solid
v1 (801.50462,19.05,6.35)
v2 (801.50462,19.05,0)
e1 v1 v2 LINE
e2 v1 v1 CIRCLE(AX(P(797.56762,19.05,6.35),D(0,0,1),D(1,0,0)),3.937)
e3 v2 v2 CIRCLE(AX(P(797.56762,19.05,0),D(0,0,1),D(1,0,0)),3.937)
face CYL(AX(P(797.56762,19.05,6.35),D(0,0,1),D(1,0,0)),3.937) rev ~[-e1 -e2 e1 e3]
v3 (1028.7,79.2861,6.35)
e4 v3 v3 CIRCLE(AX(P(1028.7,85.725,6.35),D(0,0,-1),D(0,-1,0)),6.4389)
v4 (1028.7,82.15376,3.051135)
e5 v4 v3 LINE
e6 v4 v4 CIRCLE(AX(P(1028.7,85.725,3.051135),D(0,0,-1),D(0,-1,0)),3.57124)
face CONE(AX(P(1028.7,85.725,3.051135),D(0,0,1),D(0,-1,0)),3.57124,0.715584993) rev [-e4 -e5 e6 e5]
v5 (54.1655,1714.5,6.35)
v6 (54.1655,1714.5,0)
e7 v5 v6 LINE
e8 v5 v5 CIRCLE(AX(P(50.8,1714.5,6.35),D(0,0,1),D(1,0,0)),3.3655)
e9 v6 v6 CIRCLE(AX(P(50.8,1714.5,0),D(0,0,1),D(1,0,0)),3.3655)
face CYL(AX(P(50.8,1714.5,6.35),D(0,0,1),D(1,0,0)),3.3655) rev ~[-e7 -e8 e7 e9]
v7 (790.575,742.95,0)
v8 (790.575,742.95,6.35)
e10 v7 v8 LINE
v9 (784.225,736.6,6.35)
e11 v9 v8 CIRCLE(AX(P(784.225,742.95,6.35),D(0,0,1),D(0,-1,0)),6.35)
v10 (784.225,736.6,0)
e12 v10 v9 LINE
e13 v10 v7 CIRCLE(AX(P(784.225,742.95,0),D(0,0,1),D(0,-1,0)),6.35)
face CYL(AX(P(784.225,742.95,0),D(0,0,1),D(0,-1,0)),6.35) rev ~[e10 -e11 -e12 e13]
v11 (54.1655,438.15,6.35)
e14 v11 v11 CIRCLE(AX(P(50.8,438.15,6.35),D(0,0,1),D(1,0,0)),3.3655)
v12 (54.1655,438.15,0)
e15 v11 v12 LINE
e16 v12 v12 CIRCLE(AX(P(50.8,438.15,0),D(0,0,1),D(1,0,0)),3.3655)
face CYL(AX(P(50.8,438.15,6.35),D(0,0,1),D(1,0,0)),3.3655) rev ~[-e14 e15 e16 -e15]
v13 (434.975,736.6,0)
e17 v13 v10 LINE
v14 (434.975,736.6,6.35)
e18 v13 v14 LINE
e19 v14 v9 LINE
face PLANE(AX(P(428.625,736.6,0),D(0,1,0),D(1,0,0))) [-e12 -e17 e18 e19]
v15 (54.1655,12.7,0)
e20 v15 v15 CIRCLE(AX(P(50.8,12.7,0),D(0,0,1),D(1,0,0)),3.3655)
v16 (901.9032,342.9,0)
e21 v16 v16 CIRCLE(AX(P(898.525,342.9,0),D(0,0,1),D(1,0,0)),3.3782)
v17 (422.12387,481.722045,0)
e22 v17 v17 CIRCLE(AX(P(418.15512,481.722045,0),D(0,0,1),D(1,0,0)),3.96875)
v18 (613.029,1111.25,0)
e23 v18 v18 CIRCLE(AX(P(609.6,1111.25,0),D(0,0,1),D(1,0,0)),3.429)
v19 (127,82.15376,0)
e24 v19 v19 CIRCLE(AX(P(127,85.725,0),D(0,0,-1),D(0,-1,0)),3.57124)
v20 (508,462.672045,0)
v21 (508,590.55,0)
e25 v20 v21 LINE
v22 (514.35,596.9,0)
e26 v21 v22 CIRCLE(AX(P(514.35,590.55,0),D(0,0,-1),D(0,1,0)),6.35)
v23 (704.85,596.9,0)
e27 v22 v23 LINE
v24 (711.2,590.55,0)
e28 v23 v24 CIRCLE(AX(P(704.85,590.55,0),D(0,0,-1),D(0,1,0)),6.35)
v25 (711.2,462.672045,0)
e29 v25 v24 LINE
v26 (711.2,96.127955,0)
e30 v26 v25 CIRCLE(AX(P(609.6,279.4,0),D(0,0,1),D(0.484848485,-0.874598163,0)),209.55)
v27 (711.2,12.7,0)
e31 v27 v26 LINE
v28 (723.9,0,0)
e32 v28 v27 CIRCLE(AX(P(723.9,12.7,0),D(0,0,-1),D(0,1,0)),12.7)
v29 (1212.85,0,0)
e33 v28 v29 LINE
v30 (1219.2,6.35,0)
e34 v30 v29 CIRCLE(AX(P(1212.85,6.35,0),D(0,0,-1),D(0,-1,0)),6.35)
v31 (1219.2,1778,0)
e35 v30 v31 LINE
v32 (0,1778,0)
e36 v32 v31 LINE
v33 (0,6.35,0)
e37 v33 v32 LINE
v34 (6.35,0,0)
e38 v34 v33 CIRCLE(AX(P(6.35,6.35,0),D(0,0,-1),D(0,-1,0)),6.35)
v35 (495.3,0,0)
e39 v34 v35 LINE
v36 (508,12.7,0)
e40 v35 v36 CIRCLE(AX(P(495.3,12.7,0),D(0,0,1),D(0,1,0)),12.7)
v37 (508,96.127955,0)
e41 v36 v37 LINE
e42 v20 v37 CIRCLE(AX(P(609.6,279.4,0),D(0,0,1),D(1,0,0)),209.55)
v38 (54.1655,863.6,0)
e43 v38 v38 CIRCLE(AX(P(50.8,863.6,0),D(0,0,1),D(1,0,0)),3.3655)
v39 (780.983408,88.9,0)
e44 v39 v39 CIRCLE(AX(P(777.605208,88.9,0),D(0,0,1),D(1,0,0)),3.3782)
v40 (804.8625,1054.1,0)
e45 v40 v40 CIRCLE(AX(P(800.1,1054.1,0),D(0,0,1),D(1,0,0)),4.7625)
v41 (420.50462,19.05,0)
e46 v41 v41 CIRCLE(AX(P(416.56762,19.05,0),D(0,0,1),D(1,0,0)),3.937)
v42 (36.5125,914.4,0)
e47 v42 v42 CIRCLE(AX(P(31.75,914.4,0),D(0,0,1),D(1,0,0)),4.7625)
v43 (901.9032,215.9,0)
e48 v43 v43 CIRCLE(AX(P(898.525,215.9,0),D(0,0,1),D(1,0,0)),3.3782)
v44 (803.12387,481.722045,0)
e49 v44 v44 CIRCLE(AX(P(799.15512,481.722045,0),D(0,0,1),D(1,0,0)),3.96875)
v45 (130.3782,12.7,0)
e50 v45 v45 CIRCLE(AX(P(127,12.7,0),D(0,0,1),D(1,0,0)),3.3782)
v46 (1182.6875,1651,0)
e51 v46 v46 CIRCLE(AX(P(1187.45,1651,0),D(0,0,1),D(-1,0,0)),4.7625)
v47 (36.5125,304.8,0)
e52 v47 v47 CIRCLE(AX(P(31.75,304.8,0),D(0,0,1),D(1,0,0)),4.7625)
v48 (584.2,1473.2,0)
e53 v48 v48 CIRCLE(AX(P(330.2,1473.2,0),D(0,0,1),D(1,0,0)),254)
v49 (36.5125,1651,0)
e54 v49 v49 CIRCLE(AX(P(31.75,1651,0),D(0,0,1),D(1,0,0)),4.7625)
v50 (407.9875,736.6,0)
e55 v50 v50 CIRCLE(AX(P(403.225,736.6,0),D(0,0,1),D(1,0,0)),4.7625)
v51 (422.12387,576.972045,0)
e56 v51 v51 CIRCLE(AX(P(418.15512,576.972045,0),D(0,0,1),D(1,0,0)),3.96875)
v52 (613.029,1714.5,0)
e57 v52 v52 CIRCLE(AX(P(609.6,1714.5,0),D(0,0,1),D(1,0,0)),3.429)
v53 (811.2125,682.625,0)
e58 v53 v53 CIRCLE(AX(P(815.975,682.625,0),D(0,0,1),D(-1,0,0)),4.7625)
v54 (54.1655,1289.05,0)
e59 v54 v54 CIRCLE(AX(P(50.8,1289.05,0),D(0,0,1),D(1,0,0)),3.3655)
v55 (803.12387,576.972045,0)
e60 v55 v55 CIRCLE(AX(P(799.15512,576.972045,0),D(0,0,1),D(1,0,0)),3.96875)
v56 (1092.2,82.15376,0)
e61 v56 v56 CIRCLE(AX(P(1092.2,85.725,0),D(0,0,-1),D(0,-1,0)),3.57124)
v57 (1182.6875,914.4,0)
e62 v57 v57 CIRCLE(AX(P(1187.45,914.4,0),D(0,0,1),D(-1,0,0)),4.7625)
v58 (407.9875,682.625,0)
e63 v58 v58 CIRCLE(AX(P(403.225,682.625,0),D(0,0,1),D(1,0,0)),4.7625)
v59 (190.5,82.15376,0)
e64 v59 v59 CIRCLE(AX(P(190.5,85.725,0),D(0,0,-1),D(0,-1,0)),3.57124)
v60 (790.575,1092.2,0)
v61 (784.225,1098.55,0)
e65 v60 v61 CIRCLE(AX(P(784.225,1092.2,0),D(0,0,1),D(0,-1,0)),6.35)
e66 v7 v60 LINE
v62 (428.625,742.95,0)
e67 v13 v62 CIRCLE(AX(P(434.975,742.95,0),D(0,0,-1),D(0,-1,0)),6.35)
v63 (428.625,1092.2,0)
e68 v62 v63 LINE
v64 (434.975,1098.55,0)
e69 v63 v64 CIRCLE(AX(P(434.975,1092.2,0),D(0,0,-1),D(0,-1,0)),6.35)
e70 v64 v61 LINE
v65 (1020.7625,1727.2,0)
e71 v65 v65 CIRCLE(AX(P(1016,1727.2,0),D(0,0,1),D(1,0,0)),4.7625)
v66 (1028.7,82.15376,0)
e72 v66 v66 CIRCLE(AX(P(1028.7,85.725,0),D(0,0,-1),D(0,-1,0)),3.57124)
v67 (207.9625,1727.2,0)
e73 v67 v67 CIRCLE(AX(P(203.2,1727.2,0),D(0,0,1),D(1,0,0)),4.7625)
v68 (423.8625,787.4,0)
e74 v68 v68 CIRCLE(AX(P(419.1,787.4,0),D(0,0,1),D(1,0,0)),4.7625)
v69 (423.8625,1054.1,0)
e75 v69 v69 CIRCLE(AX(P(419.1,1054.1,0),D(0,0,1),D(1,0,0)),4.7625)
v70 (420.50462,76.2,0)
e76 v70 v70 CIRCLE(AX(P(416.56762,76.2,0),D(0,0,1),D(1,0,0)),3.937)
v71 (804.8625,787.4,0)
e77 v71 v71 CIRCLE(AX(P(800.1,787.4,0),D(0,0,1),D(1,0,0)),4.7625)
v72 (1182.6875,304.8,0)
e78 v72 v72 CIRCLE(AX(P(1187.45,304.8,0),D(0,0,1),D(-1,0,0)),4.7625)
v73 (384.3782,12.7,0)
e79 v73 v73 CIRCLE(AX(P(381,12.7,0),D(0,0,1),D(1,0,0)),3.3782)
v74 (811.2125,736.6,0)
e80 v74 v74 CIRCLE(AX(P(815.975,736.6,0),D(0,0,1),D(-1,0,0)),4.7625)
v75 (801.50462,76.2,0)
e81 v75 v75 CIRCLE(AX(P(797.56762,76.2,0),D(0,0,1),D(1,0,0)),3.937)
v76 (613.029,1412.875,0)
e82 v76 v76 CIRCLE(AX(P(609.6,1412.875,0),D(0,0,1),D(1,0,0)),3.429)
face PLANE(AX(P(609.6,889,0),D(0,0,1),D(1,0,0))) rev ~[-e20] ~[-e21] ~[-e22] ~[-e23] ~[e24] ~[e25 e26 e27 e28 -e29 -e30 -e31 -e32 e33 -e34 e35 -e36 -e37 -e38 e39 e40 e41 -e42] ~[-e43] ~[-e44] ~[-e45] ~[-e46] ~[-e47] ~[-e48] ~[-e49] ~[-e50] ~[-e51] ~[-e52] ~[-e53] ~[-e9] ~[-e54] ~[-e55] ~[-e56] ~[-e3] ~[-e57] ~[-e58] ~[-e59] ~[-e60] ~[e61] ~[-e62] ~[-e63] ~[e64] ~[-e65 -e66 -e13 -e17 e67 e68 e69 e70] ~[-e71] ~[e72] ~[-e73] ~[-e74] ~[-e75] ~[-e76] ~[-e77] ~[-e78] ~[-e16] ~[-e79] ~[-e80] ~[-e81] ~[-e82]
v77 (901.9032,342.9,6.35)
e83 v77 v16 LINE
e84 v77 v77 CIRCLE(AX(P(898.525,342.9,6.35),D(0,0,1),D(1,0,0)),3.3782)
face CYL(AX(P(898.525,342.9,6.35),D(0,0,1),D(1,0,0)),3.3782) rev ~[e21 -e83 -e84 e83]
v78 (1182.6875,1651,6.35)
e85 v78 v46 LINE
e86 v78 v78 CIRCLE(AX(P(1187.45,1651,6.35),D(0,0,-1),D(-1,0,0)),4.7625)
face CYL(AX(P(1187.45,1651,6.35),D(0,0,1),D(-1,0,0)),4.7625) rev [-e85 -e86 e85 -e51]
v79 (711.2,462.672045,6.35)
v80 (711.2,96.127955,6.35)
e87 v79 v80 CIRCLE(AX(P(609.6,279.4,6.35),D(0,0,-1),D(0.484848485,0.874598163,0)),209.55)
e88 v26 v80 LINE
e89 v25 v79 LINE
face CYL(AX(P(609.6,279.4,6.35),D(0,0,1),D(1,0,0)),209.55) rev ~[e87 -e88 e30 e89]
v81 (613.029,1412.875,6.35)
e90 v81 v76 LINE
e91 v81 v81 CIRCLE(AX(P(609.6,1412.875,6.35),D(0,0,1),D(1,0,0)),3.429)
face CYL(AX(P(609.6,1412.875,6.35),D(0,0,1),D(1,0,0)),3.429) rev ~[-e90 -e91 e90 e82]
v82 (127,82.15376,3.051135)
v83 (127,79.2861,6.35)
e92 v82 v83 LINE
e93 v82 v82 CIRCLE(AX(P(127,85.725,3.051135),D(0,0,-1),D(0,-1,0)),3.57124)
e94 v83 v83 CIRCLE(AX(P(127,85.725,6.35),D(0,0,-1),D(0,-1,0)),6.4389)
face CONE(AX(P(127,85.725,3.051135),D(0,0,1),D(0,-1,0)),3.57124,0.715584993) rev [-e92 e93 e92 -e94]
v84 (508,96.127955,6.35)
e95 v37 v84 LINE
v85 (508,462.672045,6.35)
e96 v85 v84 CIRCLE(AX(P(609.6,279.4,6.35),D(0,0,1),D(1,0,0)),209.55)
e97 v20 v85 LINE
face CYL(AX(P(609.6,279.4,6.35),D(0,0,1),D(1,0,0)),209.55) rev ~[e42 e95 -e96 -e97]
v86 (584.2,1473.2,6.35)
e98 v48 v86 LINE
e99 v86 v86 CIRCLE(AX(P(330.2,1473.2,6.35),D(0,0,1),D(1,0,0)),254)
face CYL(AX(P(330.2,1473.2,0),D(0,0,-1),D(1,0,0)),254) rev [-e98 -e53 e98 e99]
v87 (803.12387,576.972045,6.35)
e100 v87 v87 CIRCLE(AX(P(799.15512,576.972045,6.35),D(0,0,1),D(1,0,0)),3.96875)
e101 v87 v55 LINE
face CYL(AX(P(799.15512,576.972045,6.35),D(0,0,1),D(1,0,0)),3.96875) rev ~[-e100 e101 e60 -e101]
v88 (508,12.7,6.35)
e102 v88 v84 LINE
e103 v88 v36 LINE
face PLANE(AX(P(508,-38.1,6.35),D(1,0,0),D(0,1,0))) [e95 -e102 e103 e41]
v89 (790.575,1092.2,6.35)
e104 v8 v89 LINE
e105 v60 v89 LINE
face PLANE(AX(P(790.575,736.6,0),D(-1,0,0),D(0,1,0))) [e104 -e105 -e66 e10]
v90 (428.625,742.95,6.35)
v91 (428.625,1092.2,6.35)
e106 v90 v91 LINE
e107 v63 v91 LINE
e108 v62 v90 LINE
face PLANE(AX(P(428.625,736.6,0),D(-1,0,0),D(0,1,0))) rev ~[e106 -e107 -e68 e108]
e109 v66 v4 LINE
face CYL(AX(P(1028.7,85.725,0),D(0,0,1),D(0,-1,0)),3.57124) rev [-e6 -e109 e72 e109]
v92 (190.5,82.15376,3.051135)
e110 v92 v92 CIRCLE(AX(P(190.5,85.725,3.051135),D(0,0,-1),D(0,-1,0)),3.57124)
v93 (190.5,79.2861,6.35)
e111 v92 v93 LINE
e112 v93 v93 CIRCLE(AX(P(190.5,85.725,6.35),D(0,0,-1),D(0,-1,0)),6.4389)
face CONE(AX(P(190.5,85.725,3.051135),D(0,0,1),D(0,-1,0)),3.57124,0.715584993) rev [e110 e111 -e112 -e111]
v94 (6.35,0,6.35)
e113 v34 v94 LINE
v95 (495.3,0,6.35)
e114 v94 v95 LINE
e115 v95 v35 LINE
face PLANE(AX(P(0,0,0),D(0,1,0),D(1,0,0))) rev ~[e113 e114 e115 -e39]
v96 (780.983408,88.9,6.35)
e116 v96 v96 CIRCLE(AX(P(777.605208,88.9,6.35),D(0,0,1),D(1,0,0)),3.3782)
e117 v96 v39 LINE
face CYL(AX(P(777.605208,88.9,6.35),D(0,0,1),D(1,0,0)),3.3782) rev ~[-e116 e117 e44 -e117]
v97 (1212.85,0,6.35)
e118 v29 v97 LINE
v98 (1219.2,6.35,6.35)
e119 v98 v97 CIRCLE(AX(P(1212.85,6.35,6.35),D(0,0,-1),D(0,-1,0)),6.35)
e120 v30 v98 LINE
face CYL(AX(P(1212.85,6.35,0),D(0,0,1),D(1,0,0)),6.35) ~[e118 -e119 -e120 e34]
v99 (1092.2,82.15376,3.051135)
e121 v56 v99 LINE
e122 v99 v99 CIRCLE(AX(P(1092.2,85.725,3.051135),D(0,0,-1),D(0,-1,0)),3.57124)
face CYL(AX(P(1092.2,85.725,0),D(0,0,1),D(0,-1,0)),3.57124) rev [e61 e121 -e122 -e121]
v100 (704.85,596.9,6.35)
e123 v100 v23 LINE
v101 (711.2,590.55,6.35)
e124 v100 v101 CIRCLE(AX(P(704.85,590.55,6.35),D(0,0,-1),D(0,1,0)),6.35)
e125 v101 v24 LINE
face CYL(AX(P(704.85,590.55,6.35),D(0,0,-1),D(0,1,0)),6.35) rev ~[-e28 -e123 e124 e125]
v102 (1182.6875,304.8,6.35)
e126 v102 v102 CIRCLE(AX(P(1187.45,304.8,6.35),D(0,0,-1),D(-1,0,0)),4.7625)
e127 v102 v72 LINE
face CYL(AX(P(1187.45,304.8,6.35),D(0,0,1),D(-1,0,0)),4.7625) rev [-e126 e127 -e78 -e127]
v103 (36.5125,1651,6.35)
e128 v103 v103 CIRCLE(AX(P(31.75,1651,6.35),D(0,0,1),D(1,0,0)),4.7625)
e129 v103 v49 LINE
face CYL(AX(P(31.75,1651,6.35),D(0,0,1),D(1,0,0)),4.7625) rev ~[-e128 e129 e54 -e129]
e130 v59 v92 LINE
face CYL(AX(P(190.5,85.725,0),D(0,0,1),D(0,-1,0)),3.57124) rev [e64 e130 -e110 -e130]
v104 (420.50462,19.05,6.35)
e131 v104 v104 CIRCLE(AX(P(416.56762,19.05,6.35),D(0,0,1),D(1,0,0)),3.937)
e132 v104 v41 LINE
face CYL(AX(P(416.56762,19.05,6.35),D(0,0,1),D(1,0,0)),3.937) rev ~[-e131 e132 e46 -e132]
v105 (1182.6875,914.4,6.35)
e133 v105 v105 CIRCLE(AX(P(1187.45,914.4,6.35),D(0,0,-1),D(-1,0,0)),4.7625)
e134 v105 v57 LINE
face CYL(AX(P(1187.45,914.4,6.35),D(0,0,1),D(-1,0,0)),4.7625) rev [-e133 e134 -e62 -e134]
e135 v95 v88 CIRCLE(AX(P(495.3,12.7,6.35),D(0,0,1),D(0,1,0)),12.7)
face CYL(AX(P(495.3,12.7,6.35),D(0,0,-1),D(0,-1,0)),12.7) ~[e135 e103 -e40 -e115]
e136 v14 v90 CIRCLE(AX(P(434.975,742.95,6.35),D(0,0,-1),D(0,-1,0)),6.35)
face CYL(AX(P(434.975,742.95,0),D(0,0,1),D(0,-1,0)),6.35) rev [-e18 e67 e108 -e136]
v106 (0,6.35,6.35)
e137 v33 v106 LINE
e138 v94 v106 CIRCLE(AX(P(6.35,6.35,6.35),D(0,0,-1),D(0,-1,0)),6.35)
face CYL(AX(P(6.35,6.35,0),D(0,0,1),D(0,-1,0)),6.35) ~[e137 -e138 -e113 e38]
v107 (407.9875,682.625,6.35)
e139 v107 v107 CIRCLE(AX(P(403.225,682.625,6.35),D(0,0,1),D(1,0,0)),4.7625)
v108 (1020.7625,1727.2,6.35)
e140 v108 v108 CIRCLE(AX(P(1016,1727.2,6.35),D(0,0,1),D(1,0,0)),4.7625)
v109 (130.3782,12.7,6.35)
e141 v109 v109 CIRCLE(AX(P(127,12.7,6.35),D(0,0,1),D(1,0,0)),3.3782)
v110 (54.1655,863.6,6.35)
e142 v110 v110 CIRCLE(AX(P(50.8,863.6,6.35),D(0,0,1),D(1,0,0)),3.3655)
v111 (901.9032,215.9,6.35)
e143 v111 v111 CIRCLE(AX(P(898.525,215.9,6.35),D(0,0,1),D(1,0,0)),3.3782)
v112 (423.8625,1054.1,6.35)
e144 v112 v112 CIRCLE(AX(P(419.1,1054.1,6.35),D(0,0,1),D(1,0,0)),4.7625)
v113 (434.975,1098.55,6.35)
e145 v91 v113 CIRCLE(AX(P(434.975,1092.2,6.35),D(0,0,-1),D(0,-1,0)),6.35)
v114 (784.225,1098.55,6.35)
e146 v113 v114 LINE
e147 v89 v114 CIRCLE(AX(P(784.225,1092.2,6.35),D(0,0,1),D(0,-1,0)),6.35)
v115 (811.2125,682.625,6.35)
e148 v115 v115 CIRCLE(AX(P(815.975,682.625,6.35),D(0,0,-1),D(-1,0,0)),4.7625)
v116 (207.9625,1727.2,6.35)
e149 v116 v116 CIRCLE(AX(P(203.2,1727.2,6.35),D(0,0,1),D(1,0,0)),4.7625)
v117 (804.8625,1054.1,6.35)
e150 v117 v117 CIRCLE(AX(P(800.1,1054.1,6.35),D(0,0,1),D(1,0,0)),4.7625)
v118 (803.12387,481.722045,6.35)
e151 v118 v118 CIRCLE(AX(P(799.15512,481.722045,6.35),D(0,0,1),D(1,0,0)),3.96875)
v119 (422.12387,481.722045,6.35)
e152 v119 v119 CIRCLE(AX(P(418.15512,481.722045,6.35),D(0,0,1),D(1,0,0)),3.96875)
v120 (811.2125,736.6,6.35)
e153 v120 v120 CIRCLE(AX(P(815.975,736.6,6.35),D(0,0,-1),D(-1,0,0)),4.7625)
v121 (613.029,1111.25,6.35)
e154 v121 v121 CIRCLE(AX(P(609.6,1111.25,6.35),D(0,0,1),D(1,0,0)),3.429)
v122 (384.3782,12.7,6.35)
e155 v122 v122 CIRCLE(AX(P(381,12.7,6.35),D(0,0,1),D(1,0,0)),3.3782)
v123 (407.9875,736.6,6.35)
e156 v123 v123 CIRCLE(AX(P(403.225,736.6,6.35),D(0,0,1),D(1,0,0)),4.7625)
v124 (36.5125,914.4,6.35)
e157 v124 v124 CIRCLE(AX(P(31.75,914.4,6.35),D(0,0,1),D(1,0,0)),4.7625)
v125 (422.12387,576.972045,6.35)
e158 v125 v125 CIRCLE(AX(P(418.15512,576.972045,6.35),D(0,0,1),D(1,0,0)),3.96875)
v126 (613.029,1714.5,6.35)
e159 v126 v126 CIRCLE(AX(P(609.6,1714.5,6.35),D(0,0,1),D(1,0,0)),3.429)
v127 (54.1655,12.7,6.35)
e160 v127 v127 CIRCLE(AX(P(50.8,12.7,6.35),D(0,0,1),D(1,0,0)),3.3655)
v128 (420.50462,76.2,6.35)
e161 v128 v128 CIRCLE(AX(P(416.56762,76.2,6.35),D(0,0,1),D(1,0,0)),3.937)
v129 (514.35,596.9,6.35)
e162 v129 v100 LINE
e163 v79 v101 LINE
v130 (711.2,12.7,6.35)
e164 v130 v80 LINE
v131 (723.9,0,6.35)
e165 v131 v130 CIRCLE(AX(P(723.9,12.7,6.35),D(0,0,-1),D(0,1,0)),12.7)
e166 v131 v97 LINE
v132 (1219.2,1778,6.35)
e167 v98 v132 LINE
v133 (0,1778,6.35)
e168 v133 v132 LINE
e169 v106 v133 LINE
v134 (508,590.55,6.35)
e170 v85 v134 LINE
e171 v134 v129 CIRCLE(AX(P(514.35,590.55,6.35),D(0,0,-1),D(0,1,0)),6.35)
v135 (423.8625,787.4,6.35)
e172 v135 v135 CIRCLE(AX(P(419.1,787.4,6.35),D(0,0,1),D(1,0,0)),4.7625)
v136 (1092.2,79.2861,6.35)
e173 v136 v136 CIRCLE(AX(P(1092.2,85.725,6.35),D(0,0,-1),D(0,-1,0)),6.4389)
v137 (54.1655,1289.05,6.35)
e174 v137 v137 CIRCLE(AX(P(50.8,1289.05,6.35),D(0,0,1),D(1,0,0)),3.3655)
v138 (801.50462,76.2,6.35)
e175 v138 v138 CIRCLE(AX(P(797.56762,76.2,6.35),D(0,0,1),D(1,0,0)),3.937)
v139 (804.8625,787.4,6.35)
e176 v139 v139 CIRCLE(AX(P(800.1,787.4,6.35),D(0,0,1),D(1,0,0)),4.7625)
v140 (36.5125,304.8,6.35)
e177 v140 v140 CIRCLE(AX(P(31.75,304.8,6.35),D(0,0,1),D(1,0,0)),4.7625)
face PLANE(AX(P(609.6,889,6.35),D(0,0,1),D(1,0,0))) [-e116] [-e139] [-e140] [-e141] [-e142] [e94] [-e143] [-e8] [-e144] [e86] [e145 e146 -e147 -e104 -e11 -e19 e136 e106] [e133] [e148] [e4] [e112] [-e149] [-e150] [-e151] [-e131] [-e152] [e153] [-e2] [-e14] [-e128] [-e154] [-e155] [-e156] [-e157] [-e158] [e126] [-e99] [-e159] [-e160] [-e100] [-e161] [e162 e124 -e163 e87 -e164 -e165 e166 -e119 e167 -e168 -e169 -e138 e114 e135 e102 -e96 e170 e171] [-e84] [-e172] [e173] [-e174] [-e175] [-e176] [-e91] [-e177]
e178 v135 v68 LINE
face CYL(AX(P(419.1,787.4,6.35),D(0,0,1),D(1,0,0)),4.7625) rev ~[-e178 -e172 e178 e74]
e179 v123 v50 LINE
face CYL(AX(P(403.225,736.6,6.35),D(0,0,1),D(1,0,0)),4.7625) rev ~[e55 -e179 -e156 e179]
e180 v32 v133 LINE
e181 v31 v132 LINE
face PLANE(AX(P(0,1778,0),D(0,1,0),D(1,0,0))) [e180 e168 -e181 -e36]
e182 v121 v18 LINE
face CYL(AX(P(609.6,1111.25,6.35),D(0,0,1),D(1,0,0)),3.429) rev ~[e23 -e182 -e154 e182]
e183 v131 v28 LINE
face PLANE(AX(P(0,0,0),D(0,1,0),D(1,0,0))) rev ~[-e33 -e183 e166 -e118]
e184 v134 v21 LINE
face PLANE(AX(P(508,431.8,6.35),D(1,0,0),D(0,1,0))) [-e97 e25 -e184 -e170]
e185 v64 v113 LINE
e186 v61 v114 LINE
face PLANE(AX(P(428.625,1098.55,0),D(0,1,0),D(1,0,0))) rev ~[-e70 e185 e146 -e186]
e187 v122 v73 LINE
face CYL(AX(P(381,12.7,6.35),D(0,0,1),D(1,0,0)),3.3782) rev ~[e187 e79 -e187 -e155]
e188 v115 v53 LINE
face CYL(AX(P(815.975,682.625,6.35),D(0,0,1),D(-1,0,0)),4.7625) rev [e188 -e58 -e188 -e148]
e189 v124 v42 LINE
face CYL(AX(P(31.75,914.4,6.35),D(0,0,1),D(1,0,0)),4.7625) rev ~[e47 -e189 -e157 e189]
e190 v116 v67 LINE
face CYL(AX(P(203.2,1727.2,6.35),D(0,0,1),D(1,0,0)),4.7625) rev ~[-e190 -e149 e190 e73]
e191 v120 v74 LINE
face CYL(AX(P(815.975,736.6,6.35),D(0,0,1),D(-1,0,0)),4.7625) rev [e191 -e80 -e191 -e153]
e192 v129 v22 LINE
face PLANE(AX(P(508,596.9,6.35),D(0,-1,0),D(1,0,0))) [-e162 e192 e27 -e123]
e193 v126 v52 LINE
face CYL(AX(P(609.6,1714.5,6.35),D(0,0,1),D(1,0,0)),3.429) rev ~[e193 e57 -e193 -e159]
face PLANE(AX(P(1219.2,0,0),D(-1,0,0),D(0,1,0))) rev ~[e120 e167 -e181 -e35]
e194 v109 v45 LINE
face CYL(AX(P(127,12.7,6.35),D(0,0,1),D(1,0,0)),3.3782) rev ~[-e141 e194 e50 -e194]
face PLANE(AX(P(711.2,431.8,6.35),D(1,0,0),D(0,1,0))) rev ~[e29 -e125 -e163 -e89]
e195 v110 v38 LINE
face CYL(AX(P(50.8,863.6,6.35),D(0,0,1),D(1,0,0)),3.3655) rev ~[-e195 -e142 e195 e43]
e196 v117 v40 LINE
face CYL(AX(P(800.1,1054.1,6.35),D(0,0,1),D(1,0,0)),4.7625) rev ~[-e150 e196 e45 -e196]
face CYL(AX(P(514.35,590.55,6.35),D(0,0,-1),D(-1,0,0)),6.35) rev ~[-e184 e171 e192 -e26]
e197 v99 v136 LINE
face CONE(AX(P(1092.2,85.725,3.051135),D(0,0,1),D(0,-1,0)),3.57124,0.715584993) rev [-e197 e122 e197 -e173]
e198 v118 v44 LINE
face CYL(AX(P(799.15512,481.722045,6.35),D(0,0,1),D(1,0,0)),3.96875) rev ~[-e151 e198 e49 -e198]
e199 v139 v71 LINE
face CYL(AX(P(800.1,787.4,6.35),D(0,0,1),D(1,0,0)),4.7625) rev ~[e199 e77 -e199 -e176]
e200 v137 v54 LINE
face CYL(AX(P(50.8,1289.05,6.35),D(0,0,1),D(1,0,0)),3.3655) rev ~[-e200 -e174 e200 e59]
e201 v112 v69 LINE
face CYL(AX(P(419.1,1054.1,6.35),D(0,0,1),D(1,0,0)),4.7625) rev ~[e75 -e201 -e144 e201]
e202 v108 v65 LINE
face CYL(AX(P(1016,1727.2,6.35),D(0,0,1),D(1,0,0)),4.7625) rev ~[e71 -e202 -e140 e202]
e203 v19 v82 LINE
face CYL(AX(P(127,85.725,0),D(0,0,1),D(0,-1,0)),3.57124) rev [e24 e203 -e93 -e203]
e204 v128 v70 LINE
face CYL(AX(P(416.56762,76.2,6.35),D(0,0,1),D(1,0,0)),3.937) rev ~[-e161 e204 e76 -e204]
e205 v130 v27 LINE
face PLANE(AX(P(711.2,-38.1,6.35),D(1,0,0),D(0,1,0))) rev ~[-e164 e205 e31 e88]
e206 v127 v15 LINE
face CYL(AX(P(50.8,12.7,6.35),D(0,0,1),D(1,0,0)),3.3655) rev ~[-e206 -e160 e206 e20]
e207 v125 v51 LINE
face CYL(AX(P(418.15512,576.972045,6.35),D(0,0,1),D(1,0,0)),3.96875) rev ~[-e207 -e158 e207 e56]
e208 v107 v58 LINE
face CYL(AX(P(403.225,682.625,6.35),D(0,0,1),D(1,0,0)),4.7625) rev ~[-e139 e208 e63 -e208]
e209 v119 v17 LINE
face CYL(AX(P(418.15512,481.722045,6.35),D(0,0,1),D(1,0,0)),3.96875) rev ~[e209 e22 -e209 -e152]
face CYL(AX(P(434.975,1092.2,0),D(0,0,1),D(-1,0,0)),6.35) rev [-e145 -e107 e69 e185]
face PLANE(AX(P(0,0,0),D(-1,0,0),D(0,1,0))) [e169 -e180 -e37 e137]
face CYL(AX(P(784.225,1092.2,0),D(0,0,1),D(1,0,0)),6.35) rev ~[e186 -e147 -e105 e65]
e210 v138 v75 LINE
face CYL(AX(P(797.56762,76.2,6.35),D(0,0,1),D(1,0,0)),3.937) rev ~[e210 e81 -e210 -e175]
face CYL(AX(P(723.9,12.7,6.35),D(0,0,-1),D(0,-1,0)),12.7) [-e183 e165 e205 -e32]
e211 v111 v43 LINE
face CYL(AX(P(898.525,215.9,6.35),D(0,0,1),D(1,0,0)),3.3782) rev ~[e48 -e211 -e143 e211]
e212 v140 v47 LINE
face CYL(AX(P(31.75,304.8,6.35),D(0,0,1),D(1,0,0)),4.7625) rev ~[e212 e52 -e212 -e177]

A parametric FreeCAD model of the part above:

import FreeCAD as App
import Part
import Sketcher

V = App.Vector
Q = App.Units.Quantity


def edges_at(feature, points):
    """Names of the edges that pass closest to the given points."""
    edges = feature.Shape.Edges
    near = lambda p: min(range(len(edges)), key=lambda i: edges[i].distToShape(Part.Vertex(*p))[0])
    return sorted({f"Edge{near(p) + 1}" for p in points})


def add_polygon(sketch, points):
    """Adds a closed chain of lines whose ends are joined by coincident constraints."""
    first, n = sketch.GeometryCount, len(points)
    for a, b in zip(points, points[1:] + points[:1]):
        sketch.addGeometry(Part.LineSegment(App.Vector(*a, 0), App.Vector(*b, 0)), False)
    for i in range(n):
        sketch.addConstraint(Sketcher.Constraint("Coincident", first + i, 2, first + (i + 1) % n, 1))

doc = App.newDocument("Part")
params = doc.addObject("Spreadsheet::Sheet", "Params")
for row, (alias, value) in enumerate([
    ("sketch1_diameter", "20 in"),
    ("sketch1_width", "48 in"),
    ("sketch1_height", "70 in"),
    ("sketch1_width2", "14.25 in"),
    ("pad1_length", "0.25 in"),
    ("sketch2_diameter", "16.5 in"),
    ("sketch3_width", "8 in"),
    ("sketch3_height", "6.5 in"),
    ("sketch4_diameter", "0.265 in"),
    ("linearpattern_pitch", "16.75 in"),
    ("sketch5_diameter", "0.27 in"),
    ("linearpattern2_pitch", "11.875 in"),
    ("sketch6_diameter", "0.266 in"),
    ("sketch7_diameter", "0.266 in"),
    ("sketch8_height", "0.25 in"),
    ("groove_angle", "360 deg"),
    ("linearpattern3_pitch", "2.5 in"),
    ("linearpattern4_pitch", "35.5 in"),
    ("sketch9_height", "0.25 in"),
    ("groove2_angle", "360 deg"),
    ("sketch10_diameter", "0.375 in"),
    ("sketch11_diameter", "0.375 in"),
    ("sketch12_diameter", "0.375 in"),
    ("sketch13_diameter", "0.375 in"),
    ("fillet_radius", "0.5 in"),
    ("fillet2_radius", "0.25 in"),
    ("sketch14_diameter", "0.31 in"),
    ("sketch15_diameter", "0.3125 in"),
], start=1):
    params.set(f"A{row}", alias)
    params.set(f"B{row}", "=" + value)
    params.setAlias(f"B{row}", alias)

body = doc.addObject("PartDesign::Body", "Body")

# Sketch on XY plane
sketch1 = doc.addObject("Sketcher::SketchObject", "Sketch")
body.addObject(sketch1)
sketch1.AttachmentSupport = (doc.XY_Plane, [""])
sketch1.MapMode = "FlatFace"
add_polygon(sketch1, [(0, 1778), (0, 0), (1219.2, 0), (1219.2, 1778)])  # lines 0-3
add_polygon(sketch1, [(790.575, 736.6), (428.625, 736.6), (428.625, 1098.55), (790.575, 1098.55)])  # lines 4-7
sketch1.addGeometry(Part.Circle(V(330.2, 1473.2, 0), V(0, 0, 1), 254), False)  # 8
sketch1.addConstraint([
    Sketcher.Constraint("Vertical", 0),
    Sketcher.Constraint("Horizontal", 1),
    Sketcher.Constraint("Vertical", 2),
    Sketcher.Constraint("Horizontal", 3),
    Sketcher.Constraint("Horizontal", 4),
    Sketcher.Constraint("Vertical", 5),
    Sketcher.Constraint("Horizontal", 6),
    Sketcher.Constraint("Vertical", 7),
    Sketcher.Constraint("Coincident", 0, 2, -1, 1),
    Sketcher.Constraint("Equal", 6, 5),
    Sketcher.Constraint("Diameter", 8, Q("20 in")),
    Sketcher.Constraint("DistanceX", 1, 1, 1, 2, Q("48 in")),
    Sketcher.Constraint("DistanceY", 0, 2, 0, 1, Q("70 in")),
    Sketcher.Constraint("DistanceX", -1, 1, 8, 3, Q("13 in")),
    Sketcher.Constraint("DistanceY", -1, 1, 8, 3, Q("58 in")),
    Sketcher.Constraint("DistanceY", -1, 1, 4, 2, Q("29 in")),
    Sketcher.Constraint("DistanceX", 4, 2, 4, 1, Q("14.25 in")),
    Sketcher.Constraint("DistanceX", -1, 1, 4, 2, Q("16.875 in")),
])
sketch1.setExpression("Constraints[18]", "Params.sketch1_diameter")
sketch1.setExpression("Constraints[19]", "Params.sketch1_width")
sketch1.setExpression("Constraints[20]", "Params.sketch1_height")
sketch1.setExpression("Constraints[24]", "Params.sketch1_width2")
pad1 = doc.addObject("PartDesign::Pad", "Pad")
body.addObject(pad1)
pad1.Profile = sketch1
pad1.setExpression("Length", "Params.pad1_length")

# Sketch on XY plane
sketch2 = doc.addObject("Sketcher::SketchObject", "Sketch001")
body.addObject(sketch2)
sketch2.AttachmentSupport = (doc.XY_Plane, [""])
sketch2.MapMode = "FlatFace"
sketch2.AttachmentOffset = App.Placement(V(0, 0, 0.25 * 25.4), App.Rotation())
sketch2.addGeometry(Part.Circle(V(609.6, 279.4, 0), V(0, 0, 1), 209.55), False)
sketch2.addConstraint([
    Sketcher.Constraint("Diameter", 0, Q("16.5 in")),
    Sketcher.Constraint("DistanceX", -1, 1, 0, 3, Q("24 in")),
    Sketcher.Constraint("DistanceY", -1, 1, 0, 3, Q("11 in")),
])
sketch2.setExpression("Constraints[0]", "Params.sketch2_diameter")
pocket1 = doc.addObject("PartDesign::Pocket", "Pocket")
body.addObject(pocket1)
pocket1.Profile = sketch2
pocket1.Type = "ThroughAll"

# Sketch on XY plane
sketch3 = doc.addObject("Sketcher::SketchObject", "Sketch002")
body.addObject(sketch3)
sketch3.AttachmentSupport = (doc.XY_Plane, [""])
sketch3.MapMode = "FlatFace"
sketch3.AttachmentOffset = App.Placement(V(0, 0, 0.25 * 25.4), App.Rotation())
add_polygon(sketch3, [(508, 127), (508, -38.1), (711.2, -38.1), (711.2, 127)])  # lines 0-3
add_polygon(sketch3, [(508, 596.9), (508, 431.8), (711.2, 431.8), (711.2, 596.9)])  # lines 4-7
sketch3.addConstraint([
    Sketcher.Constraint("Vertical", 0),
    Sketcher.Constraint("Horizontal", 1),
    Sketcher.Constraint("Vertical", 2),
    Sketcher.Constraint("Horizontal", 3),
    Sketcher.Constraint("Vertical", 4),
    Sketcher.Constraint("Horizontal", 5),
    Sketcher.Constraint("Vertical", 6),
    Sketcher.Constraint("Horizontal", 7),
    Sketcher.Constraint("Vertical", 3, 2, 4, 2),
    Sketcher.Constraint("Vertical", 2, 2, 5, 2),
    Sketcher.Constraint("Equal", 2, 4),
    Sketcher.Constraint("DistanceX", 1, 1, 1, 2, Q("8 in")),
    Sketcher.Constraint("DistanceY", 0, 2, 0, 1, Q("6.5 in")),
    Sketcher.Constraint("DistanceX", -1, 1, 0, 2, Q("20 in")),
    Sketcher.Constraint("DistanceY", -1, 1, 2, 2, Q("5 in")),
    Sketcher.Constraint("DistanceY", -1, 1, 4, 2, Q("17 in")),
])
sketch3.setExpression("Constraints[19]", "Params.sketch3_width")
sketch3.setExpression("Constraints[20]", "Params.sketch3_height")
pocket2 = doc.addObject("PartDesign::Pocket", "Pocket001")
body.addObject(pocket2)
pocket2.Profile = sketch3
pocket2.Type = "ThroughAll"

# Sketch on XY plane
sketch4 = doc.addObject("Sketcher::SketchObject", "Sketch003")
body.addObject(sketch4)
sketch4.AttachmentSupport = (doc.XY_Plane, [""])
sketch4.MapMode = "FlatFace"
sketch4.AttachmentOffset = App.Placement(V(0, 0, 0.25 * 25.4), App.Rotation())
sketch4.addGeometry(Part.Circle(V(50.8, 12.7, 0), V(0, 0, 1), 3.3655), False)
sketch4.addConstraint([
    Sketcher.Constraint("Diameter", 0, Q("0.265 in")),
    Sketcher.Constraint("DistanceX", -1, 1, 0, 3, Q("2 in")),
    Sketcher.Constraint("DistanceY", -1, 1, 0, 3, Q("0.5 in")),
])
sketch4.setExpression("Constraints[0]", "Params.sketch4_diameter")
pocket3 = doc.addObject("PartDesign::Pocket", "Pocket002")
body.addObject(pocket3)
pocket3.Profile = sketch4
pocket3.Type = "ThroughAll"
doc.recompute()

linearpattern = doc.addObject("PartDesign::LinearPattern", "LinearPattern")
body.addObject(linearpattern)
linearpattern.Originals = [pocket3]
linearpattern.Direction = (doc.Y_Axis, [""])
linearpattern.Mode = "offset"
linearpattern.setExpression("Offset", "Params.linearpattern_pitch")
linearpattern.Occurrences = 5
body.Tip = linearpattern

# Sketch on XY plane
sketch5 = doc.addObject("Sketcher::SketchObject", "Sketch004")
body.addObject(sketch5)
sketch5.AttachmentSupport = (doc.XY_Plane, [""])
sketch5.MapMode = "FlatFace"
sketch5.AttachmentOffset = App.Placement(V(0, 0, 0.25 * 25.4), App.Rotation())
sketch5.addGeometry(Part.Circle(V(609.6, 1714.5, 0), V(0, 0, 1), 3.429), False)
sketch5.addConstraint([
    Sketcher.Constraint("Diameter", 0, Q("0.27 in")),
    Sketcher.Constraint("DistanceX", -1, 1, 0, 3, Q("24 in")),
    Sketcher.Constraint("DistanceY", -1, 1, 0, 3, Q("67.5 in")),
])
sketch5.setExpression("Constraints[0]", "Params.sketch5_diameter")
pocket4 = doc.addObject("PartDesign::Pocket", "Pocket003")
body.addObject(pocket4)
pocket4.Profile = sketch5
pocket4.Type = "ThroughAll"
doc.recompute()

linearpattern2 = doc.addObject("PartDesign::LinearPattern", "LinearPattern001")
body.addObject(linearpattern2)
linearpattern2.Originals = [pocket4]
linearpattern2.Direction = (doc.Y_Axis, [""])
linearpattern2.Mode = "offset"
linearpattern2.setExpression("Offset", "Params.linearpattern2_pitch")
linearpattern2.Occurrences = 3
linearpattern2.Reversed = True
body.Tip = linearpattern2

# Sketch on XY plane
sketch6 = doc.addObject("Sketcher::SketchObject", "Sketch005")
body.addObject(sketch6)
sketch6.AttachmentSupport = (doc.XY_Plane, [""])
sketch6.MapMode = "FlatFace"
sketch6.AttachmentOffset = App.Placement(V(0, 0, 0.25 * 25.4), App.Rotation())
sketch6.addGeometry([
    Part.Circle(V(127, 12.7, 0), V(0, 0, 1), 3.3782),
    Part.Circle(V(381, 12.7, 0), V(0, 0, 1), 3.3782),
], False)
sketch6.addConstraint([
    Sketcher.Constraint("Equal", 0, 1),
    Sketcher.Constraint("Horizontal", 0, 3, 1, 3),
    Sketcher.Constraint("Diameter", 0, Q("0.266 in")),
    Sketcher.Constraint("DistanceX", -1, 1, 0, 3, Q("5 in")),
    Sketcher.Constraint("DistanceX", -1, 1, 1, 3, Q("15 in")),
    Sketcher.Constraint("DistanceY", -1, 1, 0, 3, Q("0.5 in")),
])
sketch6.setExpression("Constraints[2]", "Params.sketch6_diameter")
pocket5 = doc.addObject("PartDesign::Pocket", "Pocket004")
body.addObject(pocket5)
pocket5.Profile = sketch6
pocket5.Type = "ThroughAll"

# Sketch on XY plane
sketch7 = doc.addObject("Sketcher::SketchObject", "Sketch006")
body.addObject(sketch7)
sketch7.AttachmentSupport = (doc.XY_Plane, [""])
sketch7.MapMode = "FlatFace"
sketch7.AttachmentOffset = App.Placement(V(0, 0, 0.25 * 25.4), App.Rotation())
sketch7.addGeometry([
    Part.Circle(V(777.605208, 88.9, 0), V(0, 0, 1), 3.3782),
    Part.Circle(V(898.525, 342.9, 0), V(0, 0, 1), 3.3782),
    Part.Circle(V(898.525, 215.9, 0), V(0, 0, 1), 3.3782),
], False)
sketch7.addConstraint([
    Sketcher.Constraint("Equal", 0, 1),
    Sketcher.Constraint("Equal", 1, 2),
    Sketcher.Constraint("Vertical", 1, 3, 2, 3),
    Sketcher.Constraint("Diameter", 0, Q("0.266 in")),
    Sketcher.Constraint("DistanceY", 0, 3, 1, 3, Q("10 in")),
    Sketcher.Constraint("DistanceY", 2, 3, 1, 3, Q("5 in")),
    Sketcher.Constraint("DistanceY", -1, 1, 0, 3, Q("3.5 in")),
    Sketcher.Constraint("DistanceX", -1, 1, 1, 3, Q("35.375 in")),
    Sketcher.Constraint("DistanceX", -1, 1, 0, 3, 777.605208),
])
sketch7.setExpression("Constraints[3]", "Params.sketch7_diameter")
pocket6 = doc.addObject("PartDesign::Pocket", "Pocket005")
body.addObject(pocket6)
pocket6.Profile = sketch7
pocket6.Type = "ThroughAll"

# Sketch on YZ plane
sketch8 = doc.addObject("Sketcher::SketchObject", "Sketch007")
body.addObject(sketch8)
sketch8.AttachmentSupport = (doc.YZ_Plane, [""])
sketch8.MapMode = "FlatFace"
sketch8.AttachmentOffset = App.Placement(V(0, 0, 5 * 25.4), App.Rotation())
add_polygon(sketch8, [(85.725, 0), (85.725, 6.35), (79.2861, 6.35), (82.15376, 3.051135), (82.15376, 0)])  # lines 0-4
sketch8.addGeometry(Part.LineSegment(V(85.725, 6.35, 0), V(85.725, 0, 0)), True)  # axis
sketch8.addConstraint([
    Sketcher.Constraint("Vertical", 0),
    Sketcher.Constraint("Horizontal", 1),
    Sketcher.Constraint("Vertical", 3),
    Sketcher.Constraint("Horizontal", 4),
    Sketcher.Constraint("Vertical", 5),
    Sketcher.Constraint("Coincident", 5, 1, 0, 2),
    Sketcher.Constraint("PointOnObject", 3, 2, -1),
    Sketcher.Constraint("PointOnObject", 5, 2, -1),
    Sketcher.Constraint("Angle", 2, Q("-49 deg")),
    Sketcher.Constraint("DistanceY", 0, 1, 0, 2, Q("0.25 in")),
    Sketcher.Constraint("DistanceX", 1, 2, 1, 1, Q("0.2535 in")),
    Sketcher.Constraint("DistanceX", 4, 1, 4, 2, Q("0.1406 in")),
    Sketcher.Constraint("DistanceX", -1, 1, 0, 2, Q("3.375 in")),
])
sketch8.setExpression("Constraints[14]", "Params.sketch8_height")
groove = doc.addObject("PartDesign::Groove", "Groove")
body.addObject(groove)
groove.Profile = sketch8
groove.ReferenceAxis = (sketch8, ["Axis0"])
groove.setExpression("Angle", "Params.groove_angle")
doc.recompute()

linearpattern3 = doc.addObject("PartDesign::LinearPattern", "LinearPattern002")
body.addObject(linearpattern3)
linearpattern3.Originals = [groove]
linearpattern3.Direction = (doc.X_Axis, [""])
linearpattern3.Mode = "offset"
linearpattern3.setExpression("Offset", "Params.linearpattern3_pitch")
linearpattern3.Occurrences = 2
body.Tip = linearpattern3
doc.recompute()

linearpattern4 = doc.addObject("PartDesign::LinearPattern", "LinearPattern003")
body.addObject(linearpattern4)
linearpattern4.Originals = [groove]
linearpattern4.Direction = (doc.X_Axis, [""])
linearpattern4.Mode = "offset"
linearpattern4.setExpression("Offset", "Params.linearpattern4_pitch")
linearpattern4.Occurrences = 2
body.Tip = linearpattern4

# Sketch on YZ plane
sketch9 = doc.addObject("Sketcher::SketchObject", "Sketch008")
body.addObject(sketch9)
sketch9.AttachmentSupport = (doc.YZ_Plane, [""])
sketch9.MapMode = "FlatFace"
sketch9.AttachmentOffset = App.Placement(V(0, 0, 43 * 25.4), App.Rotation())
add_polygon(sketch9, [(85.725, 0), (85.725, 6.35), (79.2861, 6.35), (82.15376, 3.051135), (82.15376, 0)])  # lines 0-4
sketch9.addGeometry(Part.LineSegment(V(85.725, 6.35, 0), V(85.725, 0, 0)), True)  # axis
sketch9.addConstraint([
    Sketcher.Constraint("Vertical", 0),
    Sketcher.Constraint("Horizontal", 1),
    Sketcher.Constraint("Vertical", 3),
    Sketcher.Constraint("Horizontal", 4),
    Sketcher.Constraint("Vertical", 5),
    Sketcher.Constraint("Coincident", 5, 1, 0, 2),
    Sketcher.Constraint("PointOnObject", 3, 2, -1),
    Sketcher.Constraint("PointOnObject", 5, 2, -1),
    Sketcher.Constraint("Angle", 2, Q("-49 deg")),
    Sketcher.Constraint("DistanceY", 0, 1, 0, 2, Q("0.25 in")),
    Sketcher.Constraint("DistanceX", 1, 2, 1, 1, Q("0.2535 in")),
    Sketcher.Constraint("DistanceX", 4, 1, 4, 2, Q("0.1406 in")),
    Sketcher.Constraint("DistanceX", -1, 1, 0, 2, Q("3.375 in")),
])
sketch9.setExpression("Constraints[14]", "Params.sketch9_height")
groove2 = doc.addObject("PartDesign::Groove", "Groove001")
body.addObject(groove2)
groove2.Profile = sketch9
groove2.ReferenceAxis = (sketch9, ["Axis0"])
groove2.setExpression("Angle", "Params.groove2_angle")

# Sketch on XY plane
sketch10 = doc.addObject("Sketcher::SketchObject", "Sketch009")
body.addObject(sketch10)
sketch10.AttachmentSupport = (doc.XY_Plane, [""])
sketch10.MapMode = "FlatFace"
sketch10.AttachmentOffset = App.Placement(V(0, 0, 0.25 * 25.4), App.Rotation())
sketch10.addGeometry([
    Part.Circle(V(203.2, 1727.2, 0), V(0, 0, 1), 4.7625),
    Part.Circle(V(1016, 1727.2, 0), V(0, 0, 1), 4.7625),
], False)
sketch10.addConstraint([
    Sketcher.Constraint("Equal", 0, 1),
    Sketcher.Constraint("Horizontal", 0, 3, 1, 3),
    Sketcher.Constraint("Diameter", 0, Q("0.375 in")),
    Sketcher.Constraint("DistanceX", -1, 1, 0, 3, Q("8 in")),
    Sketcher.Constraint("DistanceY", -1, 1, 0, 3, Q("68 in")),
    Sketcher.Constraint("DistanceX", -1, 1, 1, 3, Q("40 in")),
])
sketch10.setExpression("Constraints[2]", "Params.sketch10_diameter")
pocket7 = doc.addObject("PartDesign::Pocket", "Pocket006")
body.addObject(pocket7)
pocket7.Profile = sketch10
pocket7.Type = "ThroughAll"

# Sketch on XY plane
sketch11 = doc.addObject("Sketcher::SketchObject", "Sketch010")
body.addObject(sketch11)
sketch11.AttachmentSupport = (doc.XY_Plane, [""])
sketch11.MapMode = "FlatFace"
sketch11.AttachmentOffset = App.Placement(V(0, 0, 0.25 * 25.4), App.Rotation())
sketch11.addGeometry([
    Part.Circle(V(31.75, 1651, 0), V(0, 0, 1), 4.7625),
    Part.Circle(V(31.75, 914.4, 0), V(0, 0, 1), 4.7625),
    Part.Circle(V(31.75, 304.8, 0), V(0, 0, 1), 4.7625),
], False)
sketch11.addConstraint([
    Sketcher.Constraint("Equal", 0, 1),
    Sketcher.Constraint("Equal", 1, 2),
    Sketcher.Constraint("Vertical", 0, 3, 1, 3),
    Sketcher.Constraint("Vertical", 1, 3, 2, 3),
    Sketcher.Constraint("Diameter", 0, Q("0.375 in")),
    Sketcher.Constraint("DistanceY", -1, 1, 0, 3, Q("65 in")),
    Sketcher.Constraint("DistanceY", -1, 1, 1, 3, Q("36 in")),
    Sketcher.Constraint("DistanceY", -1, 1, 2, 3, Q("12 in")),
    Sketcher.Constraint("DistanceX", -1, 1, 0, 3, Q("1.25 in")),
])
sketch11.setExpression("Constraints[4]", "Params.sketch11_diameter")
pocket8 = doc.addObject("PartDesign::Pocket", "Pocket007")
body.addObject(pocket8)
pocket8.Profile = sketch11
pocket8.Type = "ThroughAll"
doc.recompute()

datumplane = doc.addObject("PartDesign::Plane", "DatumPlane")
body.addObject(datumplane)
datumplane.AttachmentSupport = (doc.YZ_Plane, [""])
datumplane.MapMode = "FlatFace"
datumplane.AttachmentOffset = App.Placement(V(0, 0, 24 * 25.4), App.Rotation())
mirrored = doc.addObject("PartDesign::Mirrored", "Mirrored")
body.addObject(mirrored)
mirrored.Originals = [pocket8]
mirrored.MirrorPlane = (datumplane, [""])
body.Tip = mirrored

# Sketch on XY plane
sketch12 = doc.addObject("Sketcher::SketchObject", "Sketch011")
body.addObject(sketch12)
sketch12.AttachmentSupport = (doc.XY_Plane, [""])
sketch12.MapMode = "FlatFace"
sketch12.AttachmentOffset = App.Placement(V(0, 0, 0.25 * 25.4), App.Rotation())
sketch12.addGeometry([
    Part.Circle(V(403.225, 736.6, 0), V(0, 0, 1), 4.7625),
    Part.Circle(V(403.225, 682.625, 0), V(0, 0, 1), 4.7625),
], False)
sketch12.addConstraint([
    Sketcher.Constraint("Equal", 0, 1),
    Sketcher.Constraint("Vertical", 0, 3, 1, 3),
    Sketcher.Constraint("Diameter", 0, Q("0.375 in")),
    Sketcher.Constraint("DistanceY", -1, 1, 0, 3, Q("29 in")),
    Sketcher.Constraint("DistanceX", -1, 1, 0, 3, Q("15.875 in")),
    Sketcher.Constraint("DistanceY", -1, 1, 1, 3, Q("26.875 in")),
])
sketch12.setExpression("Constraints[2]", "Params.sketch12_diameter")
pocket9 = doc.addObject("PartDesign::Pocket", "Pocket008")
body.addObject(pocket9)
pocket9.Profile = sketch12
pocket9.Type = "ThroughAll"
doc.recompute()

datumplane2 = doc.addObject("PartDesign::Plane", "DatumPlane001")
body.addObject(datumplane2)
datumplane2.AttachmentSupport = (doc.YZ_Plane, [""])
datumplane2.MapMode = "FlatFace"
datumplane2.AttachmentOffset = App.Placement(V(0, 0, 24 * 25.4), App.Rotation())
mirrored2 = doc.addObject("PartDesign::Mirrored", "Mirrored001")
body.addObject(mirrored2)
mirrored2.Originals = [pocket9]
mirrored2.MirrorPlane = (datumplane2, [""])
body.Tip = mirrored2

# Sketch on XY plane
sketch13 = doc.addObject("Sketcher::SketchObject", "Sketch012")
body.addObject(sketch13)
sketch13.AttachmentSupport = (doc.XY_Plane, [""])
sketch13.MapMode = "FlatFace"
sketch13.AttachmentOffset = App.Placement(V(0, 0, 0.25 * 25.4), App.Rotation())
sketch13.addGeometry([
    Part.Circle(V(419.1, 1054.1, 0), V(0, 0, 1), 4.7625),
    Part.Circle(V(419.1, 787.4, 0), V(0, 0, 1), 4.7625),
    Part.Circle(V(800.1, 1054.1, 0), V(0, 0, 1), 4.7625),
    Part.Circle(V(800.1, 787.4, 0), V(0, 0, 1), 4.7625),
], False)
sketch13.addConstraint([
    Sketcher.Constraint("Equal", 0, 1),
    Sketcher.Constraint("Equal", 1, 2),
    Sketcher.Constraint("Equal", 2, 3),
    Sketcher.Constraint("Horizontal", 0, 3, 2, 3),
    Sketcher.Constraint("Horizontal", 1, 3, 3, 3),
    Sketcher.Constraint("Vertical", 0, 3, 1, 3),
    Sketcher.Constraint("Vertical", 2, 3, 3, 3),
    Sketcher.Constraint("Diameter", 0, Q("0.375 in")),
    Sketcher.Constraint("DistanceY", -1, 1, 1, 3, Q("31 in")),
    Sketcher.Constraint("DistanceX", 0, 3, 2, 3, Q("15 in")),
    Sketcher.Constraint("DistanceX", -1, 1, 0, 3, Q("16.5 in")),
    Sketcher.Constraint("DistanceY", -1, 1, 0, 3, Q("41.5 in")),
])
sketch13.setExpression("Constraints[7]", "Params.sketch13_diameter")
pocket10 = doc.addObject("PartDesign::Pocket", "Pocket009")
body.addObject(pocket10)
pocket10.Profile = sketch13
pocket10.Type = "ThroughAll"
doc.recompute()

fillet = doc.addObject("PartDesign::Fillet", "Fillet")
body.addObject(fillet)
fillet.Base = (pocket10, edges_at(pocket10, [(508, 0, 3.175), (711.2, 0, 3.175)]))
fillet.setExpression("Radius", "Params.fillet_radius")
doc.recompute()

fillet2 = doc.addObject("PartDesign::Fillet", "Fillet001")
body.addObject(fillet2)
fillet2.Base = (fillet, edges_at(fillet, [
    (428.625, 1098.55, 3.175),
    (428.625, 736.6, 3.175),
    (790.575, 736.6, 3.175),
    (790.575, 1098.55, 3.175),
    (711.2, 596.9, 3.175),
    (508, 596.9, 3.175),
    (0, 0, 3.175),
    (1219.2, 0, 3.175),
]))
fillet2.setExpression("Radius", "Params.fillet2_radius")

# Sketch on XY plane
sketch14 = doc.addObject("Sketcher::SketchObject", "Sketch013")
body.addObject(sketch14)
sketch14.AttachmentSupport = (doc.XY_Plane, [""])
sketch14.MapMode = "FlatFace"
sketch14.AttachmentOffset = App.Placement(V(0, 0, 0.25 * 25.4), App.Rotation())
sketch14.addGeometry([
    Part.Circle(V(416.56762, 76.2, 0), V(0, 0, 1), 3.937),
    Part.Circle(V(416.56762, 19.05, 0), V(0, 0, 1), 3.937),
    Part.Circle(V(797.56762, 19.05, 0), V(0, 0, 1), 3.937),
    Part.Circle(V(797.56762, 76.2, 0), V(0, 0, 1), 3.937),
], False)
sketch14.addConstraint([
    Sketcher.Constraint("Equal", 0, 1),
    Sketcher.Constraint("Equal", 1, 2),
    Sketcher.Constraint("Equal", 2, 3),
    Sketcher.Constraint("Horizontal", 1, 3, 2, 3),
    Sketcher.Constraint("Horizontal", 0, 3, 3, 3),
    Sketcher.Constraint("Vertical", 0, 3, 1, 3),
    Sketcher.Constraint("Vertical", 2, 3, 3, 3),
    Sketcher.Constraint("Diameter", 0, Q("0.31 in")),
    Sketcher.Constraint("DistanceY", -1, 1, 0, 3, Q("3 in")),
    Sketcher.Constraint("DistanceX", 1, 3, 2, 3, Q("15 in")),
    Sketcher.Constraint("DistanceY", -1, 1, 1, 3, Q("0.75 in")),
    Sketcher.Constraint("DistanceX", -1, 1, 0, 3, Q("16.4003 in")),
])
sketch14.setExpression("Constraints[7]", "Params.sketch14_diameter")
pocket11 = doc.addObject("PartDesign::Pocket", "Pocket010")
body.addObject(pocket11)
pocket11.Profile = sketch14
pocket11.Type = "ThroughAll"

# Sketch on XY plane
sketch15 = doc.addObject("Sketcher::SketchObject", "Sketch014")
body.addObject(sketch15)
sketch15.AttachmentSupport = (doc.XY_Plane, [""])
sketch15.MapMode = "FlatFace"
sketch15.AttachmentOffset = App.Placement(V(0, 0, 0.25 * 25.4), App.Rotation())
sketch15.addGeometry([
    Part.Circle(V(418.15512, 576.972045, 0), V(0, 0, 1), 3.96875),
    Part.Circle(V(418.15512, 481.722045, 0), V(0, 0, 1), 3.96875),
    Part.Circle(V(799.15512, 481.722045, 0), V(0, 0, 1), 3.96875),
    Part.Circle(V(799.15512, 576.972045, 0), V(0, 0, 1), 3.96875),
], False)
sketch15.addConstraint([
    Sketcher.Constraint("Equal", 0, 1),
    Sketcher.Constraint("Equal", 1, 2),
    Sketcher.Constraint("Equal", 2, 3),
    Sketcher.Constraint("Horizontal", 1, 3, 2, 3),
    Sketcher.Constraint("Horizontal", 0, 3, 3, 3),
    Sketcher.Constraint("Vertical", 0, 3, 1, 3),
    Sketcher.Constraint("Vertical", 2, 3, 3, 3),
    Sketcher.Constraint("Diameter", 0, Q("0.3125 in")),
    Sketcher.Constraint("DistanceX", 1, 3, 2, 3, Q("15 in")),
    Sketcher.Constraint("DistanceY", 1, 3, 0, 3, Q("3.75 in")),
    Sketcher.Constraint("DistanceX", -1, 1, 0, 3, Q("16.4628 in")),
    Sketcher.Constraint("DistanceY", -1, 1, 0, 3, 576.972045),
])
sketch15.setExpression("Constraints[7]", "Params.sketch15_diameter")
pocket12 = doc.addObject("PartDesign::Pocket", "Pocket011")
body.addObject(pocket12)
pocket12.Profile = sketch15
pocket12.Type = "ThroughAll"

doc.recompute()
